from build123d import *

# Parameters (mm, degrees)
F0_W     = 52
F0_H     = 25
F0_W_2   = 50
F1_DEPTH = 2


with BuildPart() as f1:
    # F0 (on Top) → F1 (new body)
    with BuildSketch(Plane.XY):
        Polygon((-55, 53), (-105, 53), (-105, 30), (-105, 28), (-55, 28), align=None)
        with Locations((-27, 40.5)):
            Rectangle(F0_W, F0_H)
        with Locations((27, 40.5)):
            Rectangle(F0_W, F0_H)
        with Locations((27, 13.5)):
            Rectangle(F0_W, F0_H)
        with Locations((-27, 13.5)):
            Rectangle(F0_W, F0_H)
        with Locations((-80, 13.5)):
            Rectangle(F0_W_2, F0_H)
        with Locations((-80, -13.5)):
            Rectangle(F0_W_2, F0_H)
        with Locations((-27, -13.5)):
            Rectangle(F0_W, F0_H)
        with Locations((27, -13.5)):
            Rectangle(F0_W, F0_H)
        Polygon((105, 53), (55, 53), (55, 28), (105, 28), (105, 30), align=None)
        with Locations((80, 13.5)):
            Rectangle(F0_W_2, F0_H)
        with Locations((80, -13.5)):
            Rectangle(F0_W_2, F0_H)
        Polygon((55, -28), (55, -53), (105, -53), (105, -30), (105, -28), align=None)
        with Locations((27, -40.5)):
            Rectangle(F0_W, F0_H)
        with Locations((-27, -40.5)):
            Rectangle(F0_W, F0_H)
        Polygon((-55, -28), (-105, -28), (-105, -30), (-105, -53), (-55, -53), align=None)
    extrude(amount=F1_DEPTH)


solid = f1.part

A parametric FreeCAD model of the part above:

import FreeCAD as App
import Part
import Sketcher

doc = App.newDocument("Part")
params = doc.addObject("Spreadsheet::Sheet", "Params")
for row, (alias, value) in enumerate([
    ("sketch1_width", "50 mm"),
    ("sketch1_width2", "52 mm"),
    ("sketch1_height", "25 mm"),
    ("pad1_length", "2 mm"),
], start=1):
    params.set(f"A{row}", alias)
    params.set(f"B{row}", "=" + value)
    params.setAlias(f"B{row}", alias)

body = doc.addObject("PartDesign::Body", "Body")
body.AllowCompound = True

sketch1 = doc.addObject("Sketcher::SketchObject", "Sketch")
body.addObject(sketch1)
sketch1.AttachmentSupport = (doc.XY_Plane, [""])
sketch1.MapMode = "FlatFace"
sketch1.addGeometry([
    Part.LineSegment(App.Vector(-55, 53, 0), App.Vector(-105, 53, 0)),
    Part.LineSegment(App.Vector(-105, 53, 0), App.Vector(-105, 28, 0)),
    Part.LineSegment(App.Vector(-105, 28, 0), App.Vector(-55, 28, 0)),
    Part.LineSegment(App.Vector(-55, 28, 0), App.Vector(-55, 53, 0)),
    Part.LineSegment(App.Vector(-53, 53, 0), App.Vector(-53, 28, 0)),
    Part.LineSegment(App.Vector(-53, 28, 0), App.Vector(-1, 28, 0)),
    Part.LineSegment(App.Vector(-1, 28, 0), App.Vector(-1, 53, 0)),
    Part.LineSegment(App.Vector(-1, 53, 0), App.Vector(-53, 53, 0)),
    Part.LineSegment(App.Vector(1, 53, 0), App.Vector(1, 28, 0)),
    Part.LineSegment(App.Vector(1, 28, 0), App.Vector(53, 28, 0)),
    Part.LineSegment(App.Vector(53, 28, 0), App.Vector(53, 53, 0)),
    Part.LineSegment(App.Vector(53, 53, 0), App.Vector(1, 53, 0)),
    Part.LineSegment(App.Vector(1, 26, 0), App.Vector(1, 1, 0)),
    Part.LineSegment(App.Vector(1, 1, 0), App.Vector(53, 1, 0)),
    Part.LineSegment(App.Vector(53, 1, 0), App.Vector(53, 26, 0)),
    Part.LineSegment(App.Vector(53, 26, 0), App.Vector(1, 26, 0)),
    Part.LineSegment(App.Vector(-53, 26, 0), App.Vector(-53, 1, 0)),
    Part.LineSegment(App.Vector(-53, 1, 0), App.Vector(-1, 1, 0)),
    Part.LineSegment(App.Vector(-1, 1, 0), App.Vector(-1, 26, 0)),
    Part.LineSegment(App.Vector(-1, 26, 0), App.Vector(-53, 26, 0)),
    Part.LineSegment(App.Vector(-105, 26, 0), App.Vector(-105, 1, 0)),
    Part.LineSegment(App.Vector(-105, 1, 0), App.Vector(-55, 1, 0)),
    Part.LineSegment(App.Vector(-55, 1, 0), App.Vector(-55, 26, 0)),
    Part.LineSegment(App.Vector(-55, 26, 0), App.Vector(-105, 26, 0)),
    Part.LineSegment(App.Vector(-105, -1, 0), App.Vector(-105, -26, 0)),
    Part.LineSegment(App.Vector(-105, -26, 0), App.Vector(-55, -26, 0)),
    Part.LineSegment(App.Vector(-55, -26, 0), App.Vector(-55, -1, 0)),
    Part.LineSegment(App.Vector(-55, -1, 0), App.Vector(-105, -1, 0)),
    Part.LineSegment(App.Vector(-53, -1, 0), App.Vector(-53, -26, 0)),
    Part.LineSegment(App.Vector(-53, -26, 0), App.Vector(-1, -26, 0)),
    Part.LineSegment(App.Vector(-1, -26, 0), App.Vector(-1, -1, 0)),
    Part.LineSegment(App.Vector(-1, -1, 0), App.Vector(-53, -1, 0)),
    Part.LineSegment(App.Vector(1, -1, 0), App.Vector(1, -26, 0)),
    Part.LineSegment(App.Vector(1, -26, 0), App.Vector(53, -26, 0)),
    Part.LineSegment(App.Vector(53, -26, 0), App.Vector(53, -1, 0)),
    Part.LineSegment(App.Vector(53, -1, 0), App.Vector(1, -1, 0)),
    Part.LineSegment(App.Vector(105, 53, 0), App.Vector(55, 53, 0)),
    Part.LineSegment(App.Vector(55, 53, 0), App.Vector(55, 28, 0)),
    Part.LineSegment(App.Vector(55, 28, 0), App.Vector(105, 28, 0)),
    Part.LineSegment(App.Vector(105, 28, 0), App.Vector(105, 53, 0)),
    Part.LineSegment(App.Vector(55, 26, 0), App.Vector(55, 1, 0)),
    Part.LineSegment(App.Vector(55, 1, 0), App.Vector(105, 1, 0)),
    Part.LineSegment(App.Vector(105, 1, 0), App.Vector(105, 26, 0)),
    Part.LineSegment(App.Vector(105, 26, 0), App.Vector(55, 26, 0)),
    Part.LineSegment(App.Vector(55, -1, 0), App.Vector(55, -26, 0)),
    Part.LineSegment(App.Vector(55, -26, 0), App.Vector(105, -26, 0)),
    Part.LineSegment(App.Vector(105, -26, 0), App.Vector(105, -1, 0)),
    Part.LineSegment(App.Vector(105, -1, 0), App.Vector(55, -1, 0)),
    Part.LineSegment(App.Vector(55, -28, 0), App.Vector(55, -53, 0)),
    Part.LineSegment(App.Vector(55, -53, 0), App.Vector(105, -53, 0)),
    Part.LineSegment(App.Vector(105, -53, 0), App.Vector(105, -28, 0)),
    Part.LineSegment(App.Vector(105, -28, 0), App.Vector(55, -28, 0)),
    Part.LineSegment(App.Vector(1, -28, 0), App.Vector(1, -53, 0)),
    Part.LineSegment(App.Vector(1, -53, 0), App.Vector(53, -53, 0)),
    Part.LineSegment(App.Vector(53, -53, 0), App.Vector(53, -28, 0)),
    Part.LineSegment(App.Vector(53, -28, 0), App.Vector(1, -28, 0)),
    Part.LineSegment(App.Vector(-53, -28, 0), App.Vector(-53, -53, 0)),
    Part.LineSegment(App.Vector(-53, -53, 0), App.Vector(-1, -53, 0)),
    Part.LineSegment(App.Vector(-1, -53, 0), App.Vector(-1, -28, 0)),
    Part.LineSegment(App.Vector(-1, -28, 0), App.Vector(-53, -28, 0)),
    Part.LineSegment(App.Vector(-55, -28, 0), App.Vector(-105, -28, 0)),
    Part.LineSegment(App.Vector(-105, -28, 0), App.Vector(-105, -53, 0)),
    Part.LineSegment(App.Vector(-105, -53, 0), App.Vector(-55, -53, 0)),
    Part.LineSegment(App.Vector(-55, -53, 0), App.Vector(-55, -28, 0)),
], False)
sketch1.addConstraint([
    Sketcher.Constraint("Coincident", 0, 2, 1, 1),
    Sketcher.Constraint("Coincident", 1, 2, 2, 1),
    Sketcher.Constraint("Coincident", 2, 2, 3, 1),
    Sketcher.Constraint("Coincident", 3, 2, 0, 1),
    Sketcher.Constraint("Coincident", 4, 2, 5, 1),
    Sketcher.Constraint("Coincident", 5, 2, 6, 1),
    Sketcher.Constraint("Coincident", 6, 2, 7, 1),
    Sketcher.Constraint("Coincident", 7, 2, 4, 1),
    Sketcher.Constraint("Coincident", 8, 2, 9, 1),
    Sketcher.Constraint("Coincident", 9, 2, 10, 1),
    Sketcher.Constraint("Coincident", 10, 2, 11, 1),
    Sketcher.Constraint("Coincident", 11, 2, 8, 1),
    Sketcher.Constraint("Coincident", 12, 2, 13, 1),
    Sketcher.Constraint("Coincident", 13, 2, 14, 1),
    Sketcher.Constraint("Coincident", 14, 2, 15, 1),
    Sketcher.Constraint("Coincident", 15, 2, 12, 1),
    Sketcher.Constraint("Coincident", 16, 2, 17, 1),
    Sketcher.Constraint("Coincident", 17, 2, 18, 1),
    Sketcher.Constraint("Coincident", 18, 2, 19, 1),
    Sketcher.Constraint("Coincident", 19, 2, 16, 1),
    Sketcher.Constraint("Coincident", 20, 2, 21, 1),
    Sketcher.Constraint("Coincident", 21, 2, 22, 1),
    Sketcher.Constraint("Coincident", 22, 2, 23, 1),
    Sketcher.Constraint("Coincident", 23, 2, 20, 1),
    Sketcher.Constraint("Coincident", 24, 2, 25, 1),
    Sketcher.Constraint("Coincident", 25, 2, 26, 1),
    Sketcher.Constraint("Coincident", 26, 2, 27, 1),
    Sketcher.Constraint("Coincident", 27, 2, 24, 1),
    Sketcher.Constraint("Coincident", 28, 2, 29, 1),
    Sketcher.Constraint("Coincident", 29, 2, 30, 1),
    Sketcher.Constraint("Coincident", 30, 2, 31, 1),
    Sketcher.Constraint("Coincident", 31, 2, 28, 1),
    Sketcher.Constraint("Coincident", 32, 2, 33, 1),
    Sketcher.Constraint("Coincident", 33, 2, 34, 1),
    Sketcher.Constraint("Coincident", 34, 2, 35, 1),
    Sketcher.Constraint("Coincident", 35, 2, 32, 1),
    Sketcher.Constraint("Coincident", 36, 2, 37, 1),
    Sketcher.Constraint("Coincident", 37, 2, 38, 1),
    Sketcher.Constraint("Coincident", 38, 2, 39, 1),
    Sketcher.Constraint("Coincident", 39, 2, 36, 1),
    Sketcher.Constraint("Coincident", 40, 2, 41, 1),
    Sketcher.Constraint("Coincident", 41, 2, 42, 1),
    Sketcher.Constraint("Coincident", 42, 2, 43, 1),
    Sketcher.Constraint("Coincident", 43, 2, 40, 1),
    Sketcher.Constraint("Coincident", 44, 2, 45, 1),
    Sketcher.Constraint("Coincident", 45, 2, 46, 1),
    Sketcher.Constraint("Coincident", 46, 2, 47, 1),
    Sketcher.Constraint("Coincident", 47, 2, 44, 1),
    Sketcher.Constraint("Coincident", 48, 2, 49, 1),
    Sketcher.Constraint("Coincident", 49, 2, 50, 1),
    Sketcher.Constraint("Coincident", 50, 2, 51, 1),
    Sketcher.Constraint("Coincident", 51, 2, 48, 1),
    Sketcher.Constraint("Coincident", 52, 2, 53, 1),
    Sketcher.Constraint("Coincident", 53, 2, 54, 1),
    Sketcher.Constraint("Coincident", 54, 2, 55, 1),
    Sketcher.Constraint("Coincident", 55, 2, 52, 1),
    Sketcher.Constraint("Coincident", 56, 2, 57, 1),
    Sketcher.Constraint("Coincident", 57, 2, 58, 1),
    Sketcher.Constraint("Coincident", 58, 2, 59, 1),
    Sketcher.Constraint("Coincident", 59, 2, 56, 1),
    Sketcher.Constraint("Coincident", 60, 2, 61, 1),
    Sketcher.Constraint("Coincident", 61, 2, 62, 1),
    Sketcher.Constraint("Coincident", 62, 2, 63, 1),
    Sketcher.Constraint("Coincident", 63, 2, 60, 1),
    Sketcher.Constraint("Horizontal", 0),
    Sketcher.Constraint("Vertical", 1),
    Sketcher.Constraint("Horizontal", 2),
    Sketcher.Constraint("Vertical", 3),
    Sketcher.Constraint("Vertical", 4),
    Sketcher.Constraint("Horizontal", 5),
    Sketcher.Constraint("Vertical", 6),
    Sketcher.Constraint("Horizontal", 7),
    Sketcher.Constraint("Vertical", 8),
    Sketcher.Constraint("Horizontal", 9),
    Sketcher.Constraint("Vertical", 10),
    Sketcher.Constraint("Horizontal", 11),
    Sketcher.Constraint("Vertical", 12),
    Sketcher.Constraint("Horizontal", 13),
    Sketcher.Constraint("Vertical", 14),
    Sketcher.Constraint("Horizontal", 15),
    Sketcher.Constraint("Vertical", 16),
    Sketcher.Constraint("Horizontal", 17),
    Sketcher.Constraint("Vertical", 18),
    Sketcher.Constraint("Horizontal", 19),
    Sketcher.Constraint("Vertical", 20),
    Sketcher.Constraint("Horizontal", 21),
    Sketcher.Constraint("Vertical", 22),
    Sketcher.Constraint("Horizontal", 23),
    Sketcher.Constraint("Vertical", 24),
    Sketcher.Constraint("Horizontal", 25),
    Sketcher.Constraint("Vertical", 26),
    Sketcher.Constraint("Horizontal", 27),
    Sketcher.Constraint("Vertical", 28),
    Sketcher.Constraint("Horizontal", 29),
    Sketcher.Constraint("Vertical", 30),
    Sketcher.Constraint("Horizontal", 31),
    Sketcher.Constraint("Vertical", 32),
    Sketcher.Constraint("Horizontal", 33),
    Sketcher.Constraint("Vertical", 34),
    Sketcher.Constraint("Horizontal", 35),
    Sketcher.Constraint("Horizontal", 36),
    Sketcher.Constraint("Vertical", 37),
    Sketcher.Constraint("Horizontal", 38),
    Sketcher.Constraint("Vertical", 39),
    Sketcher.Constraint("Vertical", 40),
    Sketcher.Constraint("Horizontal", 41),
    Sketcher.Constraint("Vertical", 42),
    Sketcher.Constraint("Horizontal", 43),
    Sketcher.Constraint("Vertical", 44),
    Sketcher.Constraint("Horizontal", 45),
    Sketcher.Constraint("Vertical", 46),
    Sketcher.Constraint("Horizontal", 47),
    Sketcher.Constraint("Vertical", 48),
    Sketcher.Constraint("Horizontal", 49),
    Sketcher.Constraint("Vertical", 50),
    Sketcher.Constraint("Horizontal", 51),
    Sketcher.Constraint("Vertical", 52),
    Sketcher.Constraint("Horizontal", 53),
    Sketcher.Constraint("Vertical", 54),
    Sketcher.Constraint("Horizontal", 55),
    Sketcher.Constraint("Vertical", 56),
    Sketcher.Constraint("Horizontal", 57),
    Sketcher.Constraint("Vertical", 58),
    Sketcher.Constraint("Horizontal", 59),
    Sketcher.Constraint("Horizontal", 60),
    Sketcher.Constraint("Vertical", 61),
    Sketcher.Constraint("Horizontal", 62),
    Sketcher.Constraint("Vertical", 63),
    Sketcher.Constraint("Symmetric", 14, 2, 28, 2, -1, 1),
    Sketcher.Constraint("Symmetric", 12, 2, 30, 2, -1, 1),
    Sketcher.Constraint("Symmetric", 18, 2, 32, 2, -1, 1),
    Sketcher.Constraint("Symmetric", 16, 2, 34, 2, -1, 1),
    Sketcher.Constraint("Symmetric", 26, 2, 40, 2, -1, 1),
    Sketcher.Constraint("Symmetric", 24, 2, 42, 2, -1, 1),
    Sketcher.Constraint("Symmetric", 22, 2, 44, 2, -1, 1),
    Sketcher.Constraint("Symmetric", 20, 2, 46, 2, -1, 1),
    Sketcher.Constraint("Symmetric", 3, 2, 48, 2, -1, 1),
    Sketcher.Constraint("Symmetric", 1, 2, 50, 2, -1, 1),
    Sketcher.Constraint("Symmetric", 6, 2, 52, 2, -1, 1),
    Sketcher.Constraint("Symmetric", 4, 2, 54, 2, -1, 1),
    Sketcher.Constraint("Symmetric", 10, 2, 56, 2, -1, 1),
    Sketcher.Constraint("Symmetric", 8, 2, 58, 2, -1, 1),
    Sketcher.Constraint("Symmetric", 38, 2, 60, 2, -1, 1),
    Sketcher.Constraint("Symmetric", 36, 2, 62, 2, -1, 1),
    Sketcher.Constraint("Symmetric", 5, 2, 8, 2, -2),
    Sketcher.Constraint("Symmetric", 7, 2, 10, 2, -2),
    Sketcher.Constraint("Symmetric", 13, 2, 16, 2, -2),
    Sketcher.Constraint("Symmetric", 15, 2, 18, 2, -2),
    Sketcher.Constraint("Symmetric", 3, 2, 36, 2, -2),
    Sketcher.Constraint("Symmetric", 1, 2, 38, 2, -2),
    Sketcher.Constraint("Symmetric", 21, 2, 40, 2, -2),
    Sketcher.Constraint("Symmetric", 23, 2, 42, 2, -2),
    Sketcher.Constraint("Horizontal", 2, 2, 4, 2),
    Sketcher.Constraint("Horizontal", 3, 2, 6, 2),
    Sketcher.Constraint("Horizontal", 17, 2, 20, 2),
    Sketcher.Constraint("Horizontal", 19, 2, 22, 2),
    Sketcher.Constraint("Vertical", 11, 2, 12, 2),
    Sketcher.Constraint("Vertical", 10, 2, 13, 2),
    Sketcher.Constraint("Vertical", 1, 2, 20, 2),
    Sketcher.Constraint("Vertical", 3, 2, 21, 2),
    Sketcher.Constraint("Equal", 10, 12),
    Sketcher.Constraint("DistanceX", 0, 2, 0, 1, 50.0),
    Sketcher.Constraint("DistanceX", 5, 1, 5, 2, 52.0),
    Sketcher.Constraint("DistanceY", 1, 2, 1, 1, 25.0),
    Sketcher.Constraint("DistanceX", 0, 2, -1, 1, 105.0),
    Sketcher.Constraint("DistanceY", -1, 1, 0, 2, 53.0),
    Sketcher.Constraint("DistanceX", 4, 2, -1, 1, 53.0),
    Sketcher.Constraint("DistanceY", -1, 1, 12, 2, 1.0),
])
sketch1.setExpression("Constraints[161]", "Params.sketch1_width")
sketch1.setExpression("Constraints[162]", "Params.sketch1_width2")
sketch1.setExpression("Constraints[163]", "Params.sketch1_height")
pad1 = doc.addObject("PartDesign::Pad", "Pad")
body.addObject(pad1)
pad1.Profile = sketch1
pad1.setExpression("Length", "Params.pad1_length")

doc.recompute()
